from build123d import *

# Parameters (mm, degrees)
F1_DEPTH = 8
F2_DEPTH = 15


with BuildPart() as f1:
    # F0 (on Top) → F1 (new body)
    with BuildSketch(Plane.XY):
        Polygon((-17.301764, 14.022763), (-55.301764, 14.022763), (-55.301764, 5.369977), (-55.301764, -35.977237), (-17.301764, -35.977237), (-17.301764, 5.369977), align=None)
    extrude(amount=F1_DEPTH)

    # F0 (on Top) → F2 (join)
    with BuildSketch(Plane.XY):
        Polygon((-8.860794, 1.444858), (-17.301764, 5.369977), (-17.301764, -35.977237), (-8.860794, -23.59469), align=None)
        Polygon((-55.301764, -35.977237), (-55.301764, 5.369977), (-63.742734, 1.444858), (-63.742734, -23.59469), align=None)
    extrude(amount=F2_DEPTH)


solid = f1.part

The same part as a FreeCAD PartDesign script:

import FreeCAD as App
import Part
import Sketcher

doc = App.newDocument("Part")
body = doc.addObject("PartDesign::Body", "Body")

# Sketch on XY plane
sketch1 = body.newObject("Sketcher::SketchObject", "Sketch")
sketch1.AttachmentSupport = (doc.getObject("XY_Plane"), [""])
sketch1.MapMode = "FlatFace"
sketch1.addGeometry(Part.LineSegment(App.Vector(-17, 14, 0), App.Vector(-55, 14, 0)), False)
sketch1.addGeometry(Part.LineSegment(App.Vector(-55, 14, 0), App.Vector(-55, -36, 0)), False)
sketch1.addGeometry(Part.LineSegment(App.Vector(-55, -36, 0), App.Vector(-17, -36, 0)), False)
sketch1.addGeometry(Part.LineSegment(App.Vector(-17, -36, 0), App.Vector(-17, 14, 0)), False)
sketch1.addConstraint(Sketcher.Constraint("Coincident", 0, 2, 1, 1))
sketch1.addConstraint(Sketcher.Constraint("Coincident", 1, 2, 2, 1))
sketch1.addConstraint(Sketcher.Constraint("Coincident", 2, 2, 3, 1))
sketch1.addConstraint(Sketcher.Constraint("Coincident", 3, 2, 0, 1))
sketch1.addConstraint(Sketcher.Constraint("Horizontal", 0))
sketch1.addConstraint(Sketcher.Constraint("Vertical", 1))
sketch1.addConstraint(Sketcher.Constraint("Horizontal", 2))
sketch1.addConstraint(Sketcher.Constraint("Vertical", 3))
sketch1.addConstraint(Sketcher.Constraint("DistanceX", 0, 2, 0, 1, 38.0))
sketch1.addConstraint(Sketcher.Constraint("DistanceY", 1, 2, 1, 1, 50.0))
sketch1.addConstraint(Sketcher.Constraint("DistanceX", 0, 2, -1, 1, 55.301764))
sketch1.addConstraint(Sketcher.Constraint("DistanceY", -1, 1, 0, 2, 14.022763))
pad1 = body.newObject("PartDesign::Pad", "Pad")
pad1.Profile = sketch1
pad1.Length = 8

# Sketch on XY plane
sketch2 = body.newObject("Sketcher::SketchObject", "Sketch001")
sketch2.AttachmentSupport = (doc.getObject("XY_Plane"), [""])
sketch2.MapMode = "FlatFace"
sketch2.addGeometry(Part.LineSegment(App.Vector(-9, 1, 0), App.Vector(-17, 5, 0)), False)
sketch2.addGeometry(Part.LineSegment(App.Vector(-17, 5, 0), App.Vector(-17, -36, 0)), False)
sketch2.addGeometry(Part.LineSegment(App.Vector(-17, -36, 0), App.Vector(-9, -24, 0)), False)
sketch2.addGeometry(Part.LineSegment(App.Vector(-9, -24, 0), App.Vector(-9, 1, 0)), False)
sketch2.addGeometry(Part.LineSegment(App.Vector(-55, -36, 0), App.Vector(-55, 5, 0)), False)
sketch2.addGeometry(Part.LineSegment(App.Vector(-55, 5, 0), App.Vector(-64, 1, 0)), False)
sketch2.addGeometry(Part.LineSegment(App.Vector(-64, 1, 0), App.Vector(-64, -24, 0)), False)
sketch2.addGeometry(Part.LineSegment(App.Vector(-64, -24, 0), App.Vector(-55, -36, 0)), False)
sketch2.addConstraint(Sketcher.Constraint("Coincident", 0, 2, 1, 1))
sketch2.addConstraint(Sketcher.Constraint("Coincident", 1, 2, 2, 1))
sketch2.addConstraint(Sketcher.Constraint("Coincident", 2, 2, 3, 1))
sketch2.addConstraint(Sketcher.Constraint("Coincident", 3, 2, 0, 1))
sketch2.addConstraint(Sketcher.Constraint("Coincident", 4, 2, 5, 1))
sketch2.addConstraint(Sketcher.Constraint("Coincident", 5, 2, 6, 1))
sketch2.addConstraint(Sketcher.Constraint("Coincident", 6, 2, 7, 1))
sketch2.addConstraint(Sketcher.Constraint("Coincident", 7, 2, 4, 1))
sketch2.addConstraint(Sketcher.Constraint("Vertical", 1))
sketch2.addConstraint(Sketcher.Constraint("Vertical", 3))
sketch2.addConstraint(Sketcher.Constraint("Vertical", 4))
sketch2.addConstraint(Sketcher.Constraint("Vertical", 6))
sketch2.addConstraint(Sketcher.Constraint("Horizontal", 0, 2, 4, 2))
sketch2.addConstraint(Sketcher.Constraint("Horizontal", 3, 2, 5, 2))
sketch2.addConstraint(Sketcher.Constraint("Horizontal", 2, 2, 6, 2))
sketch2.addConstraint(Sketcher.Constraint("Horizontal", 1, 2, 7, 2))
sketch2.addConstraint(Sketcher.Constraint("Equal", 0, 5))
sketch2.addConstraint(Sketcher.Constraint("DistanceX", 4, 2, 0, 2, 38.0))
sketch2.addConstraint(Sketcher.Constraint("DistanceY", 3, 1, 3, 2, 25.039548))
sketch2.addConstraint(Sketcher.Constraint("Distance", 0, 9.308949))
sketch2.addConstraint(Sketcher.Constraint("Distance", 2, 14.985908))
sketch2.addConstraint(Sketcher.Constraint("DistanceY", 1, 2, 1, 1, 41.347214))
sketch2.addConstraint(Sketcher.Constraint("DistanceY", 2, 2, -1, 1, 23.59469))
sketch2.addConstraint(Sketcher.Constraint("DistanceX", 0, 2, -1, 1, 17.301764))
pad2 = body.newObject("PartDesign::Pad", "Pad001")
pad2.Profile = sketch2
pad2.Length = 15

doc.recompute()
